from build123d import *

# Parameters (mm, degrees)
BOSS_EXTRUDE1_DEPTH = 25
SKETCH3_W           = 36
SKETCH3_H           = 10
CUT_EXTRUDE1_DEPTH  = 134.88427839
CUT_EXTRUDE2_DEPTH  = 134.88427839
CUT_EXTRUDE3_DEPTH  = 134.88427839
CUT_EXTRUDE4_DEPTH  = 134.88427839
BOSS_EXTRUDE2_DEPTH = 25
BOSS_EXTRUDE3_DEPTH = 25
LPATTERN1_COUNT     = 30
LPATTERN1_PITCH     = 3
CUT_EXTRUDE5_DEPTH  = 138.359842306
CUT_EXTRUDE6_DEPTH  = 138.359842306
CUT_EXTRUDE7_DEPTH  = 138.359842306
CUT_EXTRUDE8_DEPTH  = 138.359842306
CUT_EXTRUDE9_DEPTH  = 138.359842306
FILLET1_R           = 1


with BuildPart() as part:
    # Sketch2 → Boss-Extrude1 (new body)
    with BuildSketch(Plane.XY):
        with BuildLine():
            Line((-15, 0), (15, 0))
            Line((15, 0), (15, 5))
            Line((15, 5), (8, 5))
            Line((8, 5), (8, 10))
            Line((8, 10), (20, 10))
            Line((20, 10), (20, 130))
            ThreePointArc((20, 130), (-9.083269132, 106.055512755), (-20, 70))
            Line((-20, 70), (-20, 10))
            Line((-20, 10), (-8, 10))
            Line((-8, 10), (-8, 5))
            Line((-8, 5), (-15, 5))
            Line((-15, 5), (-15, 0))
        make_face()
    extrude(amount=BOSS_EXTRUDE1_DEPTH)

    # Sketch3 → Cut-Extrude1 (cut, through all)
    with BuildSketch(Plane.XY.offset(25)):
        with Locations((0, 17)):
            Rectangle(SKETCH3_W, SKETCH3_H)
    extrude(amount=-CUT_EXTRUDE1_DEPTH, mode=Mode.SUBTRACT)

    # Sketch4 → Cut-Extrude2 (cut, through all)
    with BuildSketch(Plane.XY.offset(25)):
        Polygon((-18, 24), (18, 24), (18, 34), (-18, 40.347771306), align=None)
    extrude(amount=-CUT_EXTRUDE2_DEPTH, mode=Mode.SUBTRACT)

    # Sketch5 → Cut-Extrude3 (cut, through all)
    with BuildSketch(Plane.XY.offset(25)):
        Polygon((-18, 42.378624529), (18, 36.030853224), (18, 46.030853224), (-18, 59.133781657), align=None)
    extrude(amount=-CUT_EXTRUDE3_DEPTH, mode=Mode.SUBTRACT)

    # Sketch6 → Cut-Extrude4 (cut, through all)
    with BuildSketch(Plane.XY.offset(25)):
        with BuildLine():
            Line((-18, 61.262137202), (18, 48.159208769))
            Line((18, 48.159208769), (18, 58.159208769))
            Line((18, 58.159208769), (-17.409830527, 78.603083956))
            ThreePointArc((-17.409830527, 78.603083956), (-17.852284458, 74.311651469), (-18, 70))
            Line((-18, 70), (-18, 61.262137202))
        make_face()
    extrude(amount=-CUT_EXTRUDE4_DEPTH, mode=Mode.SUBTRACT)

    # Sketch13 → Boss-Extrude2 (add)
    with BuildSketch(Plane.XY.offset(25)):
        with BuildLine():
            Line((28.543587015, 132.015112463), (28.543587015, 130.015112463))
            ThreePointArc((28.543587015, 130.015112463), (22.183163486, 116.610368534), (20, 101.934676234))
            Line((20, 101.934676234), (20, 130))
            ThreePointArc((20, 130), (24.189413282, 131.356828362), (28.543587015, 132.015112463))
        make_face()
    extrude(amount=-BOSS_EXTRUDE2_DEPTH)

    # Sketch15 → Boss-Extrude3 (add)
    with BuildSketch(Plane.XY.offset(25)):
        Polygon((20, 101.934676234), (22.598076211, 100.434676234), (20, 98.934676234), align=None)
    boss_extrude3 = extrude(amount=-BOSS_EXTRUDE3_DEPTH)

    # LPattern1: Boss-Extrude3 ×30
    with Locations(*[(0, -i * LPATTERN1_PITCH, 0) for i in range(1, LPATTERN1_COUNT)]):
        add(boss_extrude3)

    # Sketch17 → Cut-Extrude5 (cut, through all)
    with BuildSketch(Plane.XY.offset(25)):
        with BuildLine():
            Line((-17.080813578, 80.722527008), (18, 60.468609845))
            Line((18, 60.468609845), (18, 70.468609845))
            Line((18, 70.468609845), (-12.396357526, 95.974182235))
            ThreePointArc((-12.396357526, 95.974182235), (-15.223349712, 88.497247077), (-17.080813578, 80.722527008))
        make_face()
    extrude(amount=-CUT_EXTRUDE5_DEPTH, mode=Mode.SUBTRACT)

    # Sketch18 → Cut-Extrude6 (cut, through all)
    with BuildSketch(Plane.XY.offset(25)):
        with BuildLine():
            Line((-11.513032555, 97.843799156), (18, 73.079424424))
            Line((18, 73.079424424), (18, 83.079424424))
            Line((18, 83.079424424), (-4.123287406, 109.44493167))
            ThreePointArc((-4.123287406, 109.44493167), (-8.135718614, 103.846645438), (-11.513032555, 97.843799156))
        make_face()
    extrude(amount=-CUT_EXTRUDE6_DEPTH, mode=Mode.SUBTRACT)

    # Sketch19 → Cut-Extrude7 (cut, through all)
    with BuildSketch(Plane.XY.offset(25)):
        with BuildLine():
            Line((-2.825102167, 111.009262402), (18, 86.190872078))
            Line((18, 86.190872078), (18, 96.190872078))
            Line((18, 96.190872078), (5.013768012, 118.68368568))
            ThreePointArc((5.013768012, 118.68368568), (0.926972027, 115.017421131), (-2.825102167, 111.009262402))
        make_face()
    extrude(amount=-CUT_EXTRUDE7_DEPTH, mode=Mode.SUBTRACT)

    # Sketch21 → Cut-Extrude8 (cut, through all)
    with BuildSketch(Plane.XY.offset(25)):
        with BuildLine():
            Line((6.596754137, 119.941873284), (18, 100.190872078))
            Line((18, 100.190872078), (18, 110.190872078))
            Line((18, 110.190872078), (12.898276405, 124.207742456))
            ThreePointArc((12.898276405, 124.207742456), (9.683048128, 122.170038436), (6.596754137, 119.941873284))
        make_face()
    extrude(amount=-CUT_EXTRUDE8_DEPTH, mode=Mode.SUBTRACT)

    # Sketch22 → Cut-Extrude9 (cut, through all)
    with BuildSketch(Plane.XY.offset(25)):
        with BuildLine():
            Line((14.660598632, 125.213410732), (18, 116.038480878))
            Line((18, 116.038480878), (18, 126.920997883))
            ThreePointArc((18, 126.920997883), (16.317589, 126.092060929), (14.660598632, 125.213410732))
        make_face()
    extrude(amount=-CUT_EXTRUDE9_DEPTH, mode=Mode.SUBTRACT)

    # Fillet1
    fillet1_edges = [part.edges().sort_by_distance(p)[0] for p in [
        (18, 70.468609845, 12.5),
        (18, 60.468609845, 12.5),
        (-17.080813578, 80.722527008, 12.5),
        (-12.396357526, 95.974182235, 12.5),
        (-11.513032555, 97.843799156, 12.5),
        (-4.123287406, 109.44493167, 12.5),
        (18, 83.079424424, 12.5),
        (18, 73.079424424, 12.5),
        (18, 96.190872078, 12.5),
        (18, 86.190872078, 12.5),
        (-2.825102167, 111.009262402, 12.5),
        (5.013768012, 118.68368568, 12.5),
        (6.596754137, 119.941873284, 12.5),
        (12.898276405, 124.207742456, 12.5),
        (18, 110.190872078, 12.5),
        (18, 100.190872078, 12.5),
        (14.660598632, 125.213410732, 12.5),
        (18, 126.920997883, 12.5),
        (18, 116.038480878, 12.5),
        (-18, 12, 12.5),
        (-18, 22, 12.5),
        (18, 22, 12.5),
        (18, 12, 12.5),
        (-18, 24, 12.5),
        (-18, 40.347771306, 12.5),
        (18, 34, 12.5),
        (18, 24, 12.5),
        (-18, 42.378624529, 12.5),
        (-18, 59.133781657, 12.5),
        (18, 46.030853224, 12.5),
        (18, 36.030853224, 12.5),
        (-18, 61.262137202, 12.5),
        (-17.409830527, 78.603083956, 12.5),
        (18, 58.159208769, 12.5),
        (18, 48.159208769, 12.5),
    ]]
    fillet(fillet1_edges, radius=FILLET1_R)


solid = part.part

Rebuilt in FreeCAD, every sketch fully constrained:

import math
import FreeCAD as App
import Part
import Sketcher

V = App.Vector
Q = App.Units.Quantity


def edges_at(feature, points):
    """Names of the edges that pass closest to the given points."""
    edges = feature.Shape.Edges
    near = lambda p: min(range(len(edges)), key=lambda i: edges[i].distToShape(Part.Vertex(*p))[0])
    return sorted({f"Edge{near(p) + 1}" for p in points})

doc = App.newDocument("Part")
params = doc.addObject("Spreadsheet::Sheet", "Params")
for row, (alias, value) in enumerate([
    ("sketch1_radius", "65 mm"),
    ("sketch1_width", "30 mm"),
    ("sketch1_width2", "7 mm"),
    ("sketch1_width3", "12 mm"),
    ("sketch1_height", "5 mm"),
    ("pad1_length", "25 mm"),
    ("sketch2_width", "36 mm"),
    ("sketch2_height", "10 mm"),
    ("sketch3_width", "36 mm"),
    ("sketch3_height", "10 mm"),
    ("sketch4_height", "10 mm"),
    ("sketch5_radius", "63 mm"),
    ("sketch5_height", "10 mm"),
    ("sketch6_height", "2 mm"),
    ("pad2_length", "25 mm"),
    ("sketch7_height", "3 mm"),
    ("pad3_length", "25 mm"),
    ("linearpattern_pitch", "3 mm"),
    ("sketch8_radius", "63 mm"),
    ("sketch8_height", "10 mm"),
    ("sketch9_radius", "63 mm"),
    ("sketch9_height", "10 mm"),
    ("sketch10_radius", "63 mm"),
    ("sketch10_height", "10 mm"),
    ("sketch11_radius", "63 mm"),
    ("sketch11_height", "10 mm"),
    ("sketch12_radius", "63 mm"),
    ("fillet_radius", "1 mm"),
], start=1):
    params.set(f"A{row}", alias)
    params.set(f"B{row}", "=" + value)
    params.setAlias(f"B{row}", alias)

body = doc.addObject("PartDesign::Body", "Body")

# Sketch on XY plane
sketch1 = body.newObject("Sketcher::SketchObject", "Sketch")
sketch1.AttachmentSupport = (doc.getObject("XY_Plane"), [""])
sketch1.MapMode = "FlatFace"
sketch1.addGeometry(Part.LineSegment(V(-15, 0, 0), V(15, 0, 0)), False)
sketch1.addGeometry(Part.LineSegment(V(15, 0, 0), V(15, 5, 0)), False)
sketch1.addGeometry(Part.LineSegment(V(15, 5, 0), V(8, 5, 0)), False)
sketch1.addGeometry(Part.LineSegment(V(8, 5, 0), V(8, 10, 0)), False)
sketch1.addGeometry(Part.LineSegment(V(8, 10, 0), V(20, 10, 0)), False)
sketch1.addGeometry(Part.LineSegment(V(20, 10, 0), V(20, 130, 0)), False)
sketch1.addGeometry(Part.ArcOfCircle(Part.Circle(V(45, 70, 0), V(0, 0, 1), 65), math.radians(113), math.radians(180)), False)
sketch1.addGeometry(Part.LineSegment(V(-20, 70, 0), V(-20, 10, 0)), False)
sketch1.addGeometry(Part.LineSegment(V(-20, 10, 0), V(-8, 10, 0)), False)
sketch1.addGeometry(Part.LineSegment(V(-8, 10, 0), V(-8, 5, 0)), False)
sketch1.addGeometry(Part.LineSegment(V(-8, 5, 0), V(-15, 5, 0)), False)
sketch1.addGeometry(Part.LineSegment(V(-15, 5, 0), V(-15, 0, 0)), False)
sketch1.addConstraint(Sketcher.Constraint("Coincident", 0, 2, 1, 1))
sketch1.addConstraint(Sketcher.Constraint("Coincident", 1, 2, 2, 1))
sketch1.addConstraint(Sketcher.Constraint("Coincident", 2, 2, 3, 1))
sketch1.addConstraint(Sketcher.Constraint("Coincident", 3, 2, 4, 1))
sketch1.addConstraint(Sketcher.Constraint("Coincident", 4, 2, 5, 1))
sketch1.addConstraint(Sketcher.Constraint("Coincident", 5, 2, 6, 1))
sketch1.addConstraint(Sketcher.Constraint("Tangent", 6, 2, 7, 1))
sketch1.addConstraint(Sketcher.Constraint("Coincident", 7, 2, 8, 1))
sketch1.addConstraint(Sketcher.Constraint("Coincident", 8, 2, 9, 1))
sketch1.addConstraint(Sketcher.Constraint("Coincident", 9, 2, 10, 1))
sketch1.addConstraint(Sketcher.Constraint("Coincident", 10, 2, 11, 1))
sketch1.addConstraint(Sketcher.Constraint("Coincident", 11, 2, 0, 1))
sketch1.addConstraint(Sketcher.Constraint("Horizontal", 0))
sketch1.addConstraint(Sketcher.Constraint("Vertical", 1))
sketch1.addConstraint(Sketcher.Constraint("Horizontal", 2))
sketch1.addConstraint(Sketcher.Constraint("Vertical", 3))
sketch1.addConstraint(Sketcher.Constraint("Horizontal", 4))
sketch1.addConstraint(Sketcher.Constraint("Vertical", 5))
sketch1.addConstraint(Sketcher.Constraint("Vertical", 7))
sketch1.addConstraint(Sketcher.Constraint("Horizontal", 8))
sketch1.addConstraint(Sketcher.Constraint("Vertical", 9))
sketch1.addConstraint(Sketcher.Constraint("Horizontal", 10))
sketch1.addConstraint(Sketcher.Constraint("Vertical", 11))
sketch1.addConstraint(Sketcher.Constraint("Symmetric", 0, 2, 11, 2, -1, 1))
sketch1.addConstraint(Sketcher.Constraint("Symmetric", 4, 2, 7, 2, -2))
sketch1.addConstraint(Sketcher.Constraint("Symmetric", 2, 2, 9, 2, -2))
sketch1.addConstraint(Sketcher.Constraint("Equal", 1, 3))
sketch1.addConstraint(Sketcher.Constraint("Radius", 6, 65.0))
sketch1.addConstraint(Sketcher.Constraint("DistanceX", 0, 1, 0, 2, 30.0))
sketch1.addConstraint(Sketcher.Constraint("DistanceX", 2, 2, 2, 1, 7.0))
sketch1.addConstraint(Sketcher.Constraint("DistanceX", 4, 1, 4, 2, 12.0))
sketch1.addConstraint(Sketcher.Constraint("DistanceY", 1, 1, 1, 2, 5.0))
sketch1.addConstraint(Sketcher.Constraint("DistanceY", 5, 1, 5, 2, 120.0))
sketch1.setExpression("Constraints[27]", "Params.sketch1_radius")
sketch1.setExpression("Constraints[28]", "Params.sketch1_width")
sketch1.setExpression("Constraints[29]", "Params.sketch1_width2")
sketch1.setExpression("Constraints[30]", "Params.sketch1_width3")
sketch1.setExpression("Constraints[31]", "Params.sketch1_height")
pad1 = body.newObject("PartDesign::Pad", "Pad")
pad1.Profile = sketch1
pad1.setExpression("Length", "Params.pad1_length")

# Sketch on XY plane
sketch2 = body.newObject("Sketcher::SketchObject", "Sketch001")
sketch2.AttachmentSupport = (doc.getObject("XY_Plane"), [""])
sketch2.MapMode = "FlatFace"
sketch2.AttachmentOffset = App.Placement(V(0, 0, 25), App.Rotation())
sketch2.addGeometry(Part.LineSegment(V(-18, 22, 0), V(-18, 12, 0)), False)
sketch2.addGeometry(Part.LineSegment(V(-18, 12, 0), V(18, 12, 0)), False)
sketch2.addGeometry(Part.LineSegment(V(18, 12, 0), V(18, 22, 0)), False)
sketch2.addGeometry(Part.LineSegment(V(18, 22, 0), V(-18, 22, 0)), False)
sketch2.addConstraint(Sketcher.Constraint("Coincident", 0, 2, 1, 1))
sketch2.addConstraint(Sketcher.Constraint("Coincident", 1, 2, 2, 1))
sketch2.addConstraint(Sketcher.Constraint("Coincident", 2, 2, 3, 1))
sketch2.addConstraint(Sketcher.Constraint("Coincident", 3, 2, 0, 1))
sketch2.addConstraint(Sketcher.Constraint("Vertical", 0))
sketch2.addConstraint(Sketcher.Constraint("Horizontal", 1))
sketch2.addConstraint(Sketcher.Constraint("Vertical", 2))
sketch2.addConstraint(Sketcher.Constraint("Horizontal", 3))
sketch2.addConstraint(Sketcher.Constraint("DistanceX", 1, 1, 1, 2, 36.0))
sketch2.addConstraint(Sketcher.Constraint("DistanceY", 0, 2, 0, 1, 10.0))
sketch2.addConstraint(Sketcher.Constraint("DistanceX", 0, 2, -1, 1, 18.0))
sketch2.addConstraint(Sketcher.Constraint("DistanceY", -1, 1, 0, 2, 12.0))
sketch2.setExpression("Constraints[8]", "Params.sketch2_width")
sketch2.setExpression("Constraints[9]", "Params.sketch2_height")
pocket1 = body.newObject("PartDesign::Pocket", "Pocket")
pocket1.Profile = sketch2
pocket1.Type = "ThroughAll"

# Sketch on XY plane
sketch3 = body.newObject("Sketcher::SketchObject", "Sketch002")
sketch3.AttachmentSupport = (doc.getObject("XY_Plane"), [""])
sketch3.MapMode = "FlatFace"
sketch3.AttachmentOffset = App.Placement(V(0, 0, 25), App.Rotation())
sketch3.addGeometry(Part.LineSegment(V(-18, 24, 0), V(18, 24, 0)), False)
sketch3.addGeometry(Part.LineSegment(V(18, 24, 0), V(18, 34, 0)), False)
sketch3.addGeometry(Part.LineSegment(V(18, 34, 0), V(-18, 40, 0)), False)
sketch3.addGeometry(Part.LineSegment(V(-18, 40, 0), V(-18, 24, 0)), False)
sketch3.addConstraint(Sketcher.Constraint("Coincident", 0, 2, 1, 1))
sketch3.addConstraint(Sketcher.Constraint("Coincident", 1, 2, 2, 1))
sketch3.addConstraint(Sketcher.Constraint("Coincident", 2, 2, 3, 1))
sketch3.addConstraint(Sketcher.Constraint("Coincident", 3, 2, 0, 1))
sketch3.addConstraint(Sketcher.Constraint("Horizontal", 0))
sketch3.addConstraint(Sketcher.Constraint("Vertical", 1))
sketch3.addConstraint(Sketcher.Constraint("Vertical", 3))
sketch3.addConstraint(Sketcher.Constraint("DistanceX", 0, 1, 0, 2, 36.0))
sketch3.addConstraint(Sketcher.Constraint("DistanceY", 1, 1, 1, 2, 10.0))
sketch3.addConstraint(Sketcher.Constraint("Angle", 2, Q("170 deg")))
sketch3.addConstraint(Sketcher.Constraint("DistanceX", -1, 1, 0, 2, 18.0))
sketch3.addConstraint(Sketcher.Constraint("DistanceY", -1, 1, 0, 2, 24.0))
sketch3.setExpression("Constraints[7]", "Params.sketch3_width")
sketch3.setExpression("Constraints[8]", "Params.sketch3_height")
pocket2 = body.newObject("PartDesign::Pocket", "Pocket001")
pocket2.Profile = sketch3
pocket2.Type = "ThroughAll"

# Sketch on XY plane
sketch4 = body.newObject("Sketcher::SketchObject", "Sketch003")
sketch4.AttachmentSupport = (doc.getObject("XY_Plane"), [""])
sketch4.MapMode = "FlatFace"
sketch4.AttachmentOffset = App.Placement(V(0, 0, 25), App.Rotation())
sketch4.addGeometry(Part.LineSegment(V(-18, 42, 0), V(18, 36, 0)), False)
sketch4.addGeometry(Part.LineSegment(V(18, 36, 0), V(18, 46, 0)), False)
sketch4.addGeometry(Part.LineSegment(V(18, 46, 0), V(-18, 59, 0)), False)
sketch4.addGeometry(Part.LineSegment(V(-18, 59, 0), V(-18, 42, 0)), False)
sketch4.addConstraint(Sketcher.Constraint("Coincident", 0, 2, 1, 1))
sketch4.addConstraint(Sketcher.Constraint("Coincident", 1, 2, 2, 1))
sketch4.addConstraint(Sketcher.Constraint("Coincident", 2, 2, 3, 1))
sketch4.addConstraint(Sketcher.Constraint("Coincident", 3, 2, 0, 1))
sketch4.addConstraint(Sketcher.Constraint("Vertical", 1))
sketch4.addConstraint(Sketcher.Constraint("Vertical", 3))
sketch4.addConstraint(Sketcher.Constraint("DistanceY", 1, 1, 1, 2, 10.0))
sketch4.addConstraint(Sketcher.Constraint("Angle", 0, Q("-10 deg")))
sketch4.addConstraint(Sketcher.Constraint("Angle", 2, Q("160 deg")))
sketch4.addConstraint(Sketcher.Constraint("DistanceX", -1, 1, 0, 2, 18.0))
sketch4.addConstraint(Sketcher.Constraint("DistanceX", 2, 2, -1, 1, 18.0))
sketch4.addConstraint(Sketcher.Constraint("DistanceY", -1, 1, 2, 2, 59.133782))
sketch4.setExpression("Constraints[6]", "Params.sketch4_height")
pocket3 = body.newObject("PartDesign::Pocket", "Pocket002")
pocket3.Profile = sketch4
pocket3.Type = "ThroughAll"

# Sketch on XY plane
sketch5 = body.newObject("Sketcher::SketchObject", "Sketch004")
sketch5.AttachmentSupport = (doc.getObject("XY_Plane"), [""])
sketch5.MapMode = "FlatFace"
sketch5.AttachmentOffset = App.Placement(V(0, 0, 25), App.Rotation())
sketch5.addGeometry(Part.LineSegment(V(-18, 61, 0), V(18, 48, 0)), False)
sketch5.addGeometry(Part.LineSegment(V(18, 48, 0), V(18, 58, 0)), False)
sketch5.addGeometry(Part.LineSegment(V(18, 58, 0), V(-17, 79, 0)), False)
sketch5.addGeometry(Part.ArcOfCircle(Part.Circle(V(45, 70, 0), V(0, 0, 1), 63), math.radians(172.15), math.radians(180)), False)
sketch5.addGeometry(Part.LineSegment(V(-18, 70, 0), V(-18, 61, 0)), False)
sketch5.addConstraint(Sketcher.Constraint("Coincident", 0, 2, 1, 1))
sketch5.addConstraint(Sketcher.Constraint("Coincident", 1, 2, 2, 1))
sketch5.addConstraint(Sketcher.Constraint("Coincident", 2, 2, 3, 1))
sketch5.addConstraint(Sketcher.Constraint("Tangent", 3, 2, 4, 1))
sketch5.addConstraint(Sketcher.Constraint("Coincident", 4, 2, 0, 1))
sketch5.addConstraint(Sketcher.Constraint("Vertical", 1))
sketch5.addConstraint(Sketcher.Constraint("Vertical", 4))
sketch5.addConstraint(Sketcher.Constraint("Radius", 3, 63.0))
sketch5.addConstraint(Sketcher.Constraint("DistanceY", 1, 1, 1, 2, 10.0))
sketch5.addConstraint(Sketcher.Constraint("Angle", 0, Q("-20 deg")))
sketch5.addConstraint(Sketcher.Constraint("Angle", 2, Q("150 deg")))
sketch5.addConstraint(Sketcher.Constraint("DistanceX", -1, 1, 3, 3, 45.0))
sketch5.addConstraint(Sketcher.Constraint("DistanceY", -1, 1, 3, 3, 70.0))
sketch5.addConstraint(Sketcher.Constraint("DistanceX", -1, 1, 0, 2, 18.0))
sketch5.addConstraint(Sketcher.Constraint("Distance", 2, 40.88775))
sketch5.setExpression("Constraints[7]", "Params.sketch5_radius")
sketch5.setExpression("Constraints[8]", "Params.sketch5_height")
pocket4 = body.newObject("PartDesign::Pocket", "Pocket003")
pocket4.Profile = sketch5
pocket4.Type = "ThroughAll"

# Sketch on XY plane
sketch6 = body.newObject("Sketcher::SketchObject", "Sketch005")
sketch6.AttachmentSupport = (doc.getObject("XY_Plane"), [""])
sketch6.MapMode = "FlatFace"
sketch6.AttachmentOffset = App.Placement(V(0, 0, 25), App.Rotation())
sketch6.addGeometry(Part.LineSegment(V(28.5, 130, 0), V(28.5, 132, 0)), False)
sketch6.addGeometry(Part.ArcOfCircle(Part.Circle(V(30.4, 105.1, 0), V(0, 0, 1), 27), math.radians(93.92), math.radians(112.62)), False)
sketch6.addGeometry(Part.LineSegment(V(20, 130, 0), V(20, 101.9, 0)), False)
sketch6.addGeometry(Part.ArcOfCircle(Part.Circle(V(70.4, 101.9, 0), V(0, 0, 1), 50.4), math.radians(146), math.radians(180)), False)
sketch6.addConstraint(Sketcher.Constraint("Coincident", 0, 2, 1, 1))
sketch6.addConstraint(Sketcher.Constraint("Coincident", 1, 2, 2, 1))
sketch6.addConstraint(Sketcher.Constraint("Tangent", 2, 2, 3, 2))
sketch6.addConstraint(Sketcher.Constraint("Coincident", 3, 1, 0, 1))
sketch6.addConstraint(Sketcher.Constraint("Vertical", 0))
sketch6.addConstraint(Sketcher.Constraint("Vertical", 2))
sketch6.addConstraint(Sketcher.Constraint("DistanceY", 0, 1, 0, 2, 2.0))
sketch6.addConstraint(Sketcher.Constraint("DistanceX", -1, 1, 1, 2, 20.0))
sketch6.addConstraint(Sketcher.Constraint("DistanceY", -1, 1, 1, 2, 130.0))
sketch6.addConstraint(Sketcher.Constraint("Radius", 1, 27.019438))
sketch6.addConstraint(Sketcher.Constraint("Radius", 3, 50.418154))
sketch6.addConstraint(Sketcher.Constraint("DistanceY", 2, 2, 2, 1, 28.065324))
sketch6.addConstraint(Sketcher.Constraint("DistanceX", -1, 1, 1, 3, 30.392092))
sketch6.setExpression("Constraints[6]", "Params.sketch6_height")
pad2 = body.newObject("PartDesign::Pad", "Pad001")
pad2.Profile = sketch6
pad2.setExpression("Length", "Params.pad2_length")
pad2.Reversed = True

# Sketch on XY plane
sketch7 = body.newObject("Sketcher::SketchObject", "Sketch006")
sketch7.AttachmentSupport = (doc.getObject("XY_Plane"), [""])
sketch7.MapMode = "FlatFace"
sketch7.AttachmentOffset = App.Placement(V(0, 0, 25), App.Rotation())
sketch7.addGeometry(Part.LineSegment(V(22.6, 100.4, 0), V(20, 101.9, 0)), False)
sketch7.addGeometry(Part.LineSegment(V(20, 101.9, 0), V(20, 98.9, 0)), False)
sketch7.addGeometry(Part.LineSegment(V(20, 98.9, 0), V(22.6, 100.4, 0)), False)
sketch7.addConstraint(Sketcher.Constraint("Coincident", 0, 2, 1, 1))
sketch7.addConstraint(Sketcher.Constraint("Coincident", 1, 2, 2, 1))
sketch7.addConstraint(Sketcher.Constraint("Coincident", 2, 2, 0, 1))
sketch7.addConstraint(Sketcher.Constraint("Vertical", 1))
sketch7.addConstraint(Sketcher.Constraint("Equal", 0, 2))
sketch7.addConstraint(Sketcher.Constraint("DistanceY", 1, 2, 1, 1, 3.0))
sketch7.addConstraint(Sketcher.Constraint("Angle", 0, Q("150 deg")))
sketch7.addConstraint(Sketcher.Constraint("DistanceX", -1, 1, 0, 2, 20.0))
sketch7.addConstraint(Sketcher.Constraint("DistanceY", -1, 1, 0, 2, 101.934676))
sketch7.setExpression("Constraints[5]", "Params.sketch7_height")
pad3 = body.newObject("PartDesign::Pad", "Pad002")
pad3.Profile = sketch7
pad3.setExpression("Length", "Params.pad3_length")
pad3.Reversed = True
doc.recompute()

linearpattern = body.newObject("PartDesign::LinearPattern", "LinearPattern")
linearpattern.Originals = [pad3]
linearpattern.Direction = (doc.getObject("Y_Axis"), [""])
linearpattern.Mode = "offset"
linearpattern.setExpression("Offset", "Params.linearpattern_pitch")
linearpattern.Occurrences = 30
linearpattern.Reversed = True
body.Tip = linearpattern

# Sketch on XY plane
sketch8 = body.newObject("Sketcher::SketchObject", "Sketch007")
sketch8.AttachmentSupport = (doc.getObject("XY_Plane"), [""])
sketch8.MapMode = "FlatFace"
sketch8.AttachmentOffset = App.Placement(V(0, 0, 25), App.Rotation())
sketch8.addGeometry(Part.LineSegment(V(-17, 81, 0), V(18, 60, 0)), False)
sketch8.addGeometry(Part.LineSegment(V(18, 60, 0), V(18, 70, 0)), False)
sketch8.addGeometry(Part.LineSegment(V(18, 70, 0), V(-12, 96, 0)), False)
sketch8.addGeometry(Part.ArcOfCircle(Part.Circle(V(45, 70, 0), V(0, 0, 1), 63), math.radians(155.65), math.radians(170.2)), False)
sketch8.addConstraint(Sketcher.Constraint("Coincident", 0, 2, 1, 1))
sketch8.addConstraint(Sketcher.Constraint("Coincident", 1, 2, 2, 1))
sketch8.addConstraint(Sketcher.Constraint("Coincident", 2, 2, 3, 1))
sketch8.addConstraint(Sketcher.Constraint("Coincident", 3, 2, 0, 1))
sketch8.addConstraint(Sketcher.Constraint("Vertical", 1))
sketch8.addConstraint(Sketcher.Constraint("Radius", 3, 63.0))
sketch8.addConstraint(Sketcher.Constraint("DistanceY", 1, 1, 1, 2, 10.0))
sketch8.addConstraint(Sketcher.Constraint("Angle", 0, Q("-30 deg")))
sketch8.addConstraint(Sketcher.Constraint("Angle", 2, Q("140 deg")))
sketch8.addConstraint(Sketcher.Constraint("DistanceX", -1, 1, 3, 3, 45.0))
sketch8.addConstraint(Sketcher.Constraint("DistanceY", -1, 1, 3, 3, 70.0))
sketch8.addConstraint(Sketcher.Constraint("DistanceX", -1, 1, 0, 2, 18.0))
sketch8.addConstraint(Sketcher.Constraint("DistanceY", -1, 1, 0, 2, 60.46861))
sketch8.setExpression("Constraints[5]", "Params.sketch8_radius")
sketch8.setExpression("Constraints[6]", "Params.sketch8_height")
pocket5 = body.newObject("PartDesign::Pocket", "Pocket004")
pocket5.Profile = sketch8
pocket5.Type = "ThroughAll"

# Sketch on XY plane
sketch9 = body.newObject("Sketcher::SketchObject", "Sketch008")
sketch9.AttachmentSupport = (doc.getObject("XY_Plane"), [""])
sketch9.MapMode = "FlatFace"
sketch9.AttachmentOffset = App.Placement(V(0, 0, 25), App.Rotation())
sketch9.addGeometry(Part.LineSegment(V(-12, 98, 0), V(18, 73, 0)), False)
sketch9.addGeometry(Part.LineSegment(V(18, 73, 0), V(18, 83, 0)), False)
sketch9.addGeometry(Part.LineSegment(V(18, 83, 0), V(-4, 109, 0)), False)
sketch9.addGeometry(Part.ArcOfCircle(Part.Circle(V(45, 70, 0), V(0, 0, 1), 63), math.radians(141.24), math.radians(153.77)), False)
sketch9.addConstraint(Sketcher.Constraint("Coincident", 0, 2, 1, 1))
sketch9.addConstraint(Sketcher.Constraint("Coincident", 1, 2, 2, 1))
sketch9.addConstraint(Sketcher.Constraint("Coincident", 2, 2, 3, 1))
sketch9.addConstraint(Sketcher.Constraint("Coincident", 3, 2, 0, 1))
sketch9.addConstraint(Sketcher.Constraint("Vertical", 1))
sketch9.addConstraint(Sketcher.Constraint("Radius", 3, 63.0))
sketch9.addConstraint(Sketcher.Constraint("DistanceY", 1, 1, 1, 2, 10.0))
sketch9.addConstraint(Sketcher.Constraint("Angle", 0, Q("-40 deg")))
sketch9.addConstraint(Sketcher.Constraint("Angle", 2, Q("130 deg")))
sketch9.addConstraint(Sketcher.Constraint("DistanceX", -1, 1, 3, 3, 45.0))
sketch9.addConstraint(Sketcher.Constraint("DistanceY", -1, 1, 3, 3, 70.0))
sketch9.addConstraint(Sketcher.Constraint("DistanceX", -1, 1, 0, 2, 18.0))
sketch9.addConstraint(Sketcher.Constraint("DistanceY", -1, 1, 3, 2, 97.843799))
sketch9.setExpression("Constraints[5]", "Params.sketch9_radius")
sketch9.setExpression("Constraints[6]", "Params.sketch9_height")
pocket6 = body.newObject("PartDesign::Pocket", "Pocket005")
pocket6.Profile = sketch9
pocket6.Type = "ThroughAll"

# Sketch on XY plane
sketch10 = body.newObject("Sketcher::SketchObject", "Sketch009")
sketch10.AttachmentSupport = (doc.getObject("XY_Plane"), [""])
sketch10.MapMode = "FlatFace"
sketch10.AttachmentOffset = App.Placement(V(0, 0, 25), App.Rotation())
sketch10.addGeometry(Part.LineSegment(V(-3, 111, 0), V(18, 86, 0)), False)
sketch10.addGeometry(Part.LineSegment(V(18, 86, 0), V(18, 96, 0)), False)
sketch10.addGeometry(Part.LineSegment(V(18, 96, 0), V(5, 119, 0)), False)
sketch10.addGeometry(Part.ArcOfCircle(Part.Circle(V(45, 70, 0), V(0, 0, 1), 63), math.radians(129.4), math.radians(139.39)), False)
sketch10.addConstraint(Sketcher.Constraint("Coincident", 0, 2, 1, 1))
sketch10.addConstraint(Sketcher.Constraint("Coincident", 1, 2, 2, 1))
sketch10.addConstraint(Sketcher.Constraint("Coincident", 2, 2, 3, 1))
sketch10.addConstraint(Sketcher.Constraint("Coincident", 3, 2, 0, 1))
sketch10.addConstraint(Sketcher.Constraint("Vertical", 1))
sketch10.addConstraint(Sketcher.Constraint("Radius", 3, 63.0))
sketch10.addConstraint(Sketcher.Constraint("DistanceY", 1, 1, 1, 2, 10.0))
sketch10.addConstraint(Sketcher.Constraint("Angle", 0, Q("-50 deg")))
sketch10.addConstraint(Sketcher.Constraint("Angle", 2, Q("120 deg")))
sketch10.addConstraint(Sketcher.Constraint("DistanceX", -1, 1, 3, 3, 45.0))
sketch10.addConstraint(Sketcher.Constraint("DistanceY", -1, 1, 3, 3, 70.0))
sketch10.addConstraint(Sketcher.Constraint("DistanceX", -1, 1, 0, 2, 18.0))
sketch10.addConstraint(Sketcher.Constraint("DistanceX", -1, 1, 2, 2, 5.013768))
sketch10.setExpression("Constraints[5]", "Params.sketch10_radius")
sketch10.setExpression("Constraints[6]", "Params.sketch10_height")
pocket7 = body.newObject("PartDesign::Pocket", "Pocket006")
pocket7.Profile = sketch10
pocket7.Type = "ThroughAll"

# Sketch on XY plane
sketch11 = body.newObject("Sketcher::SketchObject", "Sketch010")
sketch11.AttachmentSupport = (doc.getObject("XY_Plane"), [""])
sketch11.MapMode = "FlatFace"
sketch11.AttachmentOffset = App.Placement(V(0, 0, 25), App.Rotation())
sketch11.addGeometry(Part.LineSegment(V(7, 120, 0), V(18, 100, 0)), False)
sketch11.addGeometry(Part.LineSegment(V(18, 100, 0), V(18, 110, 0)), False)
sketch11.addGeometry(Part.LineSegment(V(18, 110, 0), V(13, 124, 0)), False)
sketch11.addGeometry(Part.ArcOfCircle(Part.Circle(V(45, 70, 0), V(0, 0, 1), 63), math.radians(120.63), math.radians(127.56)), False)
sketch11.addConstraint(Sketcher.Constraint("Coincident", 0, 2, 1, 1))
sketch11.addConstraint(Sketcher.Constraint("Coincident", 1, 2, 2, 1))
sketch11.addConstraint(Sketcher.Constraint("Coincident", 2, 2, 3, 1))
sketch11.addConstraint(Sketcher.Constraint("Coincident", 3, 2, 0, 1))
sketch11.addConstraint(Sketcher.Constraint("Vertical", 1))
sketch11.addConstraint(Sketcher.Constraint("Radius", 3, 63.0))
sketch11.addConstraint(Sketcher.Constraint("DistanceY", 1, 1, 1, 2, 10.0))
sketch11.addConstraint(Sketcher.Constraint("Angle", 0, Q("-60 deg")))
sketch11.addConstraint(Sketcher.Constraint("Angle", 2, Q("110 deg")))
sketch11.addConstraint(Sketcher.Constraint("DistanceX", -1, 1, 3, 3, 45.0))
sketch11.addConstraint(Sketcher.Constraint("DistanceY", -1, 1, 3, 3, 70.0))
sketch11.addConstraint(Sketcher.Constraint("DistanceX", -1, 1, 0, 2, 18.0))
sketch11.addConstraint(Sketcher.Constraint("DistanceY", 1, 2, 3, 2, 9.751001))
sketch11.setExpression("Constraints[5]", "Params.sketch11_radius")
sketch11.setExpression("Constraints[6]", "Params.sketch11_height")
pocket8 = body.newObject("PartDesign::Pocket", "Pocket007")
pocket8.Profile = sketch11
pocket8.Type = "ThroughAll"

# Sketch on XY plane
sketch12 = body.newObject("Sketcher::SketchObject", "Sketch011")
sketch12.AttachmentSupport = (doc.getObject("XY_Plane"), [""])
sketch12.MapMode = "FlatFace"
sketch12.AttachmentOffset = App.Placement(V(0, 0, 25), App.Rotation())
sketch12.addGeometry(Part.LineSegment(V(14.7, 125.2, 0), V(18, 116, 0)), False)
sketch12.addGeometry(Part.LineSegment(V(18, 116, 0), V(18, 126.9, 0)), False)
sketch12.addGeometry(Part.ArcOfCircle(Part.Circle(V(45, 70, 0), V(0, 0, 1), 63), math.radians(115.38), math.radians(118.79)), False)
sketch12.addConstraint(Sketcher.Constraint("Coincident", 0, 2, 1, 1))
sketch12.addConstraint(Sketcher.Constraint("Coincident", 1, 2, 2, 1))
sketch12.addConstraint(Sketcher.Constraint("Coincident", 2, 2, 0, 1))
sketch12.addConstraint(Sketcher.Constraint("Vertical", 1))
sketch12.addConstraint(Sketcher.Constraint("Radius", 2, 63.0))
sketch12.addConstraint(Sketcher.Constraint("Angle", 0, Q("-70 deg")))
sketch12.addConstraint(Sketcher.Constraint("DistanceX", -1, 1, 2, 3, 45.0))
sketch12.addConstraint(Sketcher.Constraint("DistanceY", -1, 1, 2, 3, 70.0))
sketch12.addConstraint(Sketcher.Constraint("DistanceX", -1, 1, 0, 2, 18.0))
sketch12.addConstraint(Sketcher.Constraint("DistanceX", -1, 1, 2, 2, 14.660599))
sketch12.setExpression("Constraints[4]", "Params.sketch12_radius")
pocket9 = body.newObject("PartDesign::Pocket", "Pocket008")
pocket9.Profile = sketch12
pocket9.Type = "ThroughAll"
doc.recompute()

fillet = body.newObject("PartDesign::Fillet", "Fillet")
fillet.Base = (pocket9, edges_at(pocket9, [
    (18, 70.469, 12.5),
    (18, 60.469, 12.5),
    (-17.081, 80.723, 12.5),
    (-12.396, 95.974, 12.5),
    (-11.513, 97.844, 12.5),
    (-4.123, 109.445, 12.5),
    (18, 83.079, 12.5),
    (18, 73.079, 12.5),
    (18, 96.191, 12.5),
    (18, 86.191, 12.5),
    (-2.825, 111.009, 12.5),
    (5.014, 118.684, 12.5),
    (6.597, 119.942, 12.5),
    (12.898, 124.208, 12.5),
    (18, 110.191, 12.5),
    (18, 100.191, 12.5),
    (14.661, 125.213, 12.5),
    (18, 126.921, 12.5),
    (18, 116.038, 12.5),
    (-18, 12, 12.5),
    (-18, 22, 12.5),
    (18, 22, 12.5),
    (18, 12, 12.5),
    (-18, 24, 12.5),
    (-18, 40.348, 12.5),
    (18, 34, 12.5),
    (18, 24, 12.5),
    (-18, 42.379, 12.5),
    (-18, 59.134, 12.5),
    (18, 46.031, 12.5),
    (18, 36.031, 12.5),
    (-18, 61.262, 12.5),
    (-17.41, 78.603, 12.5),
    (18, 58.159, 12.5),
    (18, 48.159, 12.5),
]))
fillet.setExpression("Radius", "Params.fillet_radius")

doc.recompute()
